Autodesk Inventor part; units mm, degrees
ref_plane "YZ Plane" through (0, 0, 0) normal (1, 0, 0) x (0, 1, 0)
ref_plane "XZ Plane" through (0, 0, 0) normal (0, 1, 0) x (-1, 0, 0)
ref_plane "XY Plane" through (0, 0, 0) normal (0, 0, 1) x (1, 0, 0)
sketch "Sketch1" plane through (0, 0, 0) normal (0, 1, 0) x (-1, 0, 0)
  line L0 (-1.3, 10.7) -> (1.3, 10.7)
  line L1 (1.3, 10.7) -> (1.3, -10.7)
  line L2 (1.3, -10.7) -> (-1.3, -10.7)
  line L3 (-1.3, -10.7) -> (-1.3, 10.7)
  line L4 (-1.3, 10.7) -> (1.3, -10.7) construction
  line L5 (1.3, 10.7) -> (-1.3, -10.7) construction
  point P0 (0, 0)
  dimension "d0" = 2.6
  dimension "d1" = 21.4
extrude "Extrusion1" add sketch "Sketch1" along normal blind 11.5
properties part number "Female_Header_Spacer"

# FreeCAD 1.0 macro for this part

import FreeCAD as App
import Part
import Sketcher
from FreeCAD import Vector


def add_polygon(sketch, points):
    """Adds a closed chain of lines whose ends are joined by coincident constraints."""
    first, n = sketch.GeometryCount, len(points)
    for a, b in zip(points, points[1:] + points[:1]):
        sketch.addGeometry(Part.LineSegment(App.Vector(*a, 0), App.Vector(*b, 0)), False)
    for i in range(n):
        sketch.addConstraint(Sketcher.Constraint("Coincident", first + i, 2, first + (i + 1) % n, 1))

doc = App.newDocument("Part")
body = doc.addObject("PartDesign::Body", "Body")

sketch1 = body.newObject("Sketcher::SketchObject", "Sketch")
sketch1.AttachmentSupport = (doc.getObject("XZ_Plane"), [""])
sketch1.MapMode = "FlatFace"
add_polygon(sketch1, [(-1.3, 10.7), (1.3, 10.7), (1.3, -10.7), (-1.3, -10.7)])
sketch1.addConstraint([
    Sketcher.Constraint("Horizontal", 0),
    Sketcher.Constraint("Vertical", 1),
    Sketcher.Constraint("Horizontal", 2),
    Sketcher.Constraint("Vertical", 3),
    Sketcher.Constraint("Symmetric", 0, 2, 2, 2, -1, 1),
    Sketcher.Constraint("DistanceX", 0, 1, 0, 2, 2.6),
    Sketcher.Constraint("DistanceY", 1, 2, 1, 1, 21.4),
])
pad1 = body.newObject("PartDesign::Pad", "Pad")
pad1.Profile = sketch1
pad1.Length = 11.5
pad1.Reversed = True

doc.recompute()
